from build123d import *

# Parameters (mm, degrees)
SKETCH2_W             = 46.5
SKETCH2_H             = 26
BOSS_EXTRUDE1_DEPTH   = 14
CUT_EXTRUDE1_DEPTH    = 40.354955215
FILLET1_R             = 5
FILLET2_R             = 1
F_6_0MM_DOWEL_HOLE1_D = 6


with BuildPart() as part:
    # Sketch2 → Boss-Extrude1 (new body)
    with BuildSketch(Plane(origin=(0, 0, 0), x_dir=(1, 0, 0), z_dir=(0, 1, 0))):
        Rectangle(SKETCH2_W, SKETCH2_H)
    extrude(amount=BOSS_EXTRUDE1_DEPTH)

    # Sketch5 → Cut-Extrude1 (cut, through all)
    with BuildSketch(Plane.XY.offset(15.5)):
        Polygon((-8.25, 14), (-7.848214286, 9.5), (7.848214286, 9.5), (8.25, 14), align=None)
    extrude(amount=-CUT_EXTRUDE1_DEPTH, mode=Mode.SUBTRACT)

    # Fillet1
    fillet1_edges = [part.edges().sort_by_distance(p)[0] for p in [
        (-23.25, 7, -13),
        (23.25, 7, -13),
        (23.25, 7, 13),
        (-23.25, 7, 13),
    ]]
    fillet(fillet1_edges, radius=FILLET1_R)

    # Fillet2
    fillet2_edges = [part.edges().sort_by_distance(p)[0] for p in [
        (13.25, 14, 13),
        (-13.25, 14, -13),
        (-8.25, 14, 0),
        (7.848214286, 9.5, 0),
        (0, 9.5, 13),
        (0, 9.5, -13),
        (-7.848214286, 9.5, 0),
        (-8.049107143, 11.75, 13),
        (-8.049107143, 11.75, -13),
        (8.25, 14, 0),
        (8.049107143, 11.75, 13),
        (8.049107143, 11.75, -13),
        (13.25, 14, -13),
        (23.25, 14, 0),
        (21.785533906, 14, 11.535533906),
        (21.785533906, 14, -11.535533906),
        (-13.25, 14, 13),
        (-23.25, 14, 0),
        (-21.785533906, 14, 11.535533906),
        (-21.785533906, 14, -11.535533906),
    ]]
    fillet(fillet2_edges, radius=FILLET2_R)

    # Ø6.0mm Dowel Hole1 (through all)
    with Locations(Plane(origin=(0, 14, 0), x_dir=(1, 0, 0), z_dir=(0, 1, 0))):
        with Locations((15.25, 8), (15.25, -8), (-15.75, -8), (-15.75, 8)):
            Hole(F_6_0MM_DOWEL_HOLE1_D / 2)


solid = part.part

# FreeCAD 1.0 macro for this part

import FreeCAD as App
import Part
import Sketcher
Q = App.Units.Quantity


def edges_at(feature, points):
    """Names of the edges that pass closest to the given points."""
    edges = feature.Shape.Edges
    near = lambda p: min(range(len(edges)), key=lambda i: edges[i].distToShape(Part.Vertex(*p))[0])
    return sorted({f"Edge{near(p) + 1}" for p in points})

doc = App.newDocument("Part")
body = doc.addObject("PartDesign::Body", "Body")

# Sketch on XZ plane
sketch1 = body.newObject("Sketcher::SketchObject", "Sketch")
sketch1.AttachmentSupport = (doc.getObject("XZ_Plane"), [""])
sketch1.MapMode = "FlatFace"
sketch1.addGeometry(Part.LineSegment(App.Vector(-23.25, -13, 0), App.Vector(-23.25, 13, 0)), False)
sketch1.addGeometry(Part.LineSegment(App.Vector(-23.25, 13, 0), App.Vector(23.25, 13, 0)), False)
sketch1.addGeometry(Part.LineSegment(App.Vector(23.25, 13, 0), App.Vector(23.25, -13, 0)), False)
sketch1.addGeometry(Part.LineSegment(App.Vector(23.25, -13, 0), App.Vector(-23.25, -13, 0)), False)
sketch1.addConstraint(Sketcher.Constraint("Coincident", 0, 2, 1, 1))
sketch1.addConstraint(Sketcher.Constraint("Coincident", 1, 2, 2, 1))
sketch1.addConstraint(Sketcher.Constraint("Coincident", 2, 2, 3, 1))
sketch1.addConstraint(Sketcher.Constraint("Coincident", 3, 2, 0, 1))
sketch1.addConstraint(Sketcher.Constraint("Vertical", 0))
sketch1.addConstraint(Sketcher.Constraint("Horizontal", 1))
sketch1.addConstraint(Sketcher.Constraint("Vertical", 2))
sketch1.addConstraint(Sketcher.Constraint("Horizontal", 3))
sketch1.addConstraint(Sketcher.Constraint("Symmetric", 0, 2, 2, 2, -1, 1))
sketch1.addConstraint(Sketcher.Constraint("DistanceY", 0, 1, 0, 2, Q("26 mm")))
sketch1.addConstraint(Sketcher.Constraint("DistanceX", 1, 1, 1, 2, Q("46.5 mm")))
pad1 = body.newObject("PartDesign::Pad", "Pad")
pad1.Profile = sketch1
pad1.Length = 14
pad1.Reversed = True

# Sketch on XY plane
sketch2 = body.newObject("Sketcher::SketchObject", "Sketch001")
sketch2.AttachmentSupport = (doc.getObject("XY_Plane"), [""])
sketch2.MapMode = "FlatFace"
sketch2.AttachmentOffset = App.Placement(App.Vector(0, 0, 15.5), App.Rotation())
sketch2.addGeometry(Part.LineSegment(App.Vector(-8.25, 14, 0), App.Vector(-7.848214, 9.5, 0)), False)
sketch2.addGeometry(Part.LineSegment(App.Vector(-7.848214, 9.5, 0), App.Vector(7.848214, 9.5, 0)), False)
sketch2.addGeometry(Part.LineSegment(App.Vector(7.848214, 9.5, 0), App.Vector(8.25, 14, 0)), False)
sketch2.addGeometry(Part.LineSegment(App.Vector(8.25, 14, 0), App.Vector(-8.25, 14, 0)), False)
sketch2.addConstraint(Sketcher.Constraint("Coincident", 0, 2, 1, 1))
sketch2.addConstraint(Sketcher.Constraint("Coincident", 1, 2, 2, 1))
sketch2.addConstraint(Sketcher.Constraint("Coincident", 2, 2, 3, 1))
sketch2.addConstraint(Sketcher.Constraint("Coincident", 3, 2, 0, 1))
sketch2.addConstraint(Sketcher.Constraint("Horizontal", 1))
sketch2.addConstraint(Sketcher.Constraint("Horizontal", 3))
sketch2.addConstraint(Sketcher.Constraint("Equal", 0, 2))
sketch2.addConstraint(Sketcher.Constraint("DistanceX", 3, 2, 3, 1, Q("16.5 mm")))
sketch2.addConstraint(Sketcher.Constraint("DistanceY", -1, 1, 2, 2, Q("14 mm")))
sketch2.addConstraint(Sketcher.Constraint("DistanceY", -1, 1, 0, 2, Q("9.5 mm")))
sketch2.addConstraint(Sketcher.Constraint("DistanceX", -1, 1, 2, 2, Q("8.25 mm")))
sketch2.addConstraint(Sketcher.Constraint("Distance", 0, Q("4.517901 mm")))
pocket1 = body.newObject("PartDesign::Pocket", "Pocket")
pocket1.Profile = sketch2
pocket1.Type = "ThroughAll"
doc.recompute()

fillet = body.newObject("PartDesign::Fillet", "Fillet")
fillet.Base = (pocket1, edges_at(pocket1, [
    (-23.25, 7, -13),
    (23.25, 7, -13),
    (23.25, 7, 13),
    (-23.25, 7, 13),
]))
fillet.Radius = 5
doc.recompute()

fillet2 = body.newObject("PartDesign::Fillet", "Fillet001")
fillet2.Base = (fillet, edges_at(fillet, [
    (13.25, 14, 13),
    (-13.25, 14, -13),
    (-8.25, 14, 0),
    (7.848, 9.5, 0),
    (0, 9.5, 13),
    (0, 9.5, -13),
    (-7.848, 9.5, 0),
    (-8.049, 11.75, 13),
    (-8.049, 11.75, -13),
    (8.25, 14, 0),
    (8.049, 11.75, 13),
    (8.049, 11.75, -13),
    (13.25, 14, -13),
    (23.25, 14, 0),
    (21.786, 14, 11.536),
    (21.786, 14, -11.536),
    (-13.25, 14, 13),
    (-23.25, 14, 0),
    (-21.786, 14, 11.536),
    (-21.786, 14, -11.536),
]))
fillet2.Radius = 1

# Sketch on XZ plane
sketch3 = body.newObject("Sketcher::SketchObject", "Sketch002")
sketch3.AttachmentSupport = (doc.getObject("XZ_Plane"), [""])
sketch3.MapMode = "FlatFace"
sketch3.AttachmentOffset = App.Placement(App.Vector(0, 0, -14), App.Rotation())
sketch3.addGeometry(Part.Circle(App.Vector(15.25, -8, 0), App.Vector(0, 0, 1), 3), False)
sketch3.addGeometry(Part.Circle(App.Vector(15.25, 8, 0), App.Vector(0, 0, 1), 3), False)
sketch3.addGeometry(Part.Circle(App.Vector(-15.75, 8, 0), App.Vector(0, 0, 1), 3), False)
sketch3.addGeometry(Part.Circle(App.Vector(-15.75, -8, 0), App.Vector(0, 0, 1), 3), False)
sketch3.addConstraint(Sketcher.Constraint("Equal", 0, 1))
sketch3.addConstraint(Sketcher.Constraint("Equal", 1, 2))
sketch3.addConstraint(Sketcher.Constraint("Equal", 2, 3))
sketch3.addConstraint(Sketcher.Constraint("Symmetric", 0, 3, 1, 3, -1))
sketch3.addConstraint(Sketcher.Constraint("Symmetric", 2, 3, 3, 3, -1))
sketch3.addConstraint(Sketcher.Constraint("Horizontal", 1, 3, 2, 3))
sketch3.addConstraint(Sketcher.Constraint("Diameter", 0, Q("6 mm")))
sketch3.addConstraint(Sketcher.Constraint("DistanceY", 0, 3, -1, 1, Q("8 mm")))
sketch3.addConstraint(Sketcher.Constraint("DistanceX", 2, 3, 1, 3, Q("31 mm")))
sketch3.addConstraint(Sketcher.Constraint("DistanceX", -1, 1, 0, 3, Q("15.25 mm")))
doc.recompute()
hole = body.newObject("PartDesign::Hole", "Hole")
hole.Profile = sketch3
hole.ThreadType = "None"
hole.Diameter = 6
hole.DepthType = "ThroughAll"
hole.Reversed = True

doc.recompute()
